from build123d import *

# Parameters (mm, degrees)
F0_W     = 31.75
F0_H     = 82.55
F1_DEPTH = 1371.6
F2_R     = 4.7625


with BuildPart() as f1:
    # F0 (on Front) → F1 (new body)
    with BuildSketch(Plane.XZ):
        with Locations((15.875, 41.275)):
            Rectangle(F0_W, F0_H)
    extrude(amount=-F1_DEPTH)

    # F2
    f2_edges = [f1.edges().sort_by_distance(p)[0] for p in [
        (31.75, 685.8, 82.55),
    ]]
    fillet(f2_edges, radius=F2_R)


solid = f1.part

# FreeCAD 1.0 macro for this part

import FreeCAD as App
import Part
import Sketcher
from FreeCAD import Vector
Q = App.Units.Quantity


def edges_at(feature, points):
    """Names of the edges that pass closest to the given points."""
    edges = feature.Shape.Edges
    near = lambda p: min(range(len(edges)), key=lambda i: edges[i].distToShape(Part.Vertex(*p))[0])
    return sorted({f"Edge{near(p) + 1}" for p in points})

doc = App.newDocument("Part")
body = doc.addObject("PartDesign::Body", "Body")

sketch1 = doc.addObject("Sketcher::SketchObject", "Sketch")
body.addObject(sketch1)
sketch1.AttachmentSupport = (doc.XZ_Plane, [""])
sketch1.MapMode = "FlatFace"
sketch1.addGeometry([
    Part.LineSegment(Vector(0, 83, 0), Vector(0, 0, 0)),
    Part.LineSegment(Vector(0, 0, 0), Vector(32, 0, 0)),
    Part.LineSegment(Vector(32, 0, 0), Vector(32, 83, 0)),
    Part.LineSegment(Vector(32, 83, 0), Vector(0, 83, 0)),
], False)
sketch1.addConstraint([
    Sketcher.Constraint("Coincident", 0, 2, 1, 1),
    Sketcher.Constraint("Coincident", 1, 2, 2, 1),
    Sketcher.Constraint("Coincident", 2, 2, 3, 1),
    Sketcher.Constraint("Coincident", 3, 2, 0, 1),
    Sketcher.Constraint("Vertical", 0),
    Sketcher.Constraint("Horizontal", 1),
    Sketcher.Constraint("Vertical", 2),
    Sketcher.Constraint("Horizontal", 3),
    Sketcher.Constraint("Coincident", 0, 2, -1, 1),
    Sketcher.Constraint("DistanceX", 1, 1, 1, 2, Q("1.25 in")),
    Sketcher.Constraint("DistanceY", 0, 2, 0, 1, Q("3.25 in")),
])
pad1 = doc.addObject("PartDesign::Pad", "Pad")
body.addObject(pad1)
pad1.Profile = sketch1
pad1.Length = Q("54 in")
pad1.Reversed = True
doc.recompute()

fillet = doc.addObject("PartDesign::Fillet", "Fillet")
body.addObject(fillet)
fillet.Base = (pad1, edges_at(pad1, [(31.75, 685.8, 82.55)]))
fillet.Radius = Q("0.1875 in")

doc.recompute()
